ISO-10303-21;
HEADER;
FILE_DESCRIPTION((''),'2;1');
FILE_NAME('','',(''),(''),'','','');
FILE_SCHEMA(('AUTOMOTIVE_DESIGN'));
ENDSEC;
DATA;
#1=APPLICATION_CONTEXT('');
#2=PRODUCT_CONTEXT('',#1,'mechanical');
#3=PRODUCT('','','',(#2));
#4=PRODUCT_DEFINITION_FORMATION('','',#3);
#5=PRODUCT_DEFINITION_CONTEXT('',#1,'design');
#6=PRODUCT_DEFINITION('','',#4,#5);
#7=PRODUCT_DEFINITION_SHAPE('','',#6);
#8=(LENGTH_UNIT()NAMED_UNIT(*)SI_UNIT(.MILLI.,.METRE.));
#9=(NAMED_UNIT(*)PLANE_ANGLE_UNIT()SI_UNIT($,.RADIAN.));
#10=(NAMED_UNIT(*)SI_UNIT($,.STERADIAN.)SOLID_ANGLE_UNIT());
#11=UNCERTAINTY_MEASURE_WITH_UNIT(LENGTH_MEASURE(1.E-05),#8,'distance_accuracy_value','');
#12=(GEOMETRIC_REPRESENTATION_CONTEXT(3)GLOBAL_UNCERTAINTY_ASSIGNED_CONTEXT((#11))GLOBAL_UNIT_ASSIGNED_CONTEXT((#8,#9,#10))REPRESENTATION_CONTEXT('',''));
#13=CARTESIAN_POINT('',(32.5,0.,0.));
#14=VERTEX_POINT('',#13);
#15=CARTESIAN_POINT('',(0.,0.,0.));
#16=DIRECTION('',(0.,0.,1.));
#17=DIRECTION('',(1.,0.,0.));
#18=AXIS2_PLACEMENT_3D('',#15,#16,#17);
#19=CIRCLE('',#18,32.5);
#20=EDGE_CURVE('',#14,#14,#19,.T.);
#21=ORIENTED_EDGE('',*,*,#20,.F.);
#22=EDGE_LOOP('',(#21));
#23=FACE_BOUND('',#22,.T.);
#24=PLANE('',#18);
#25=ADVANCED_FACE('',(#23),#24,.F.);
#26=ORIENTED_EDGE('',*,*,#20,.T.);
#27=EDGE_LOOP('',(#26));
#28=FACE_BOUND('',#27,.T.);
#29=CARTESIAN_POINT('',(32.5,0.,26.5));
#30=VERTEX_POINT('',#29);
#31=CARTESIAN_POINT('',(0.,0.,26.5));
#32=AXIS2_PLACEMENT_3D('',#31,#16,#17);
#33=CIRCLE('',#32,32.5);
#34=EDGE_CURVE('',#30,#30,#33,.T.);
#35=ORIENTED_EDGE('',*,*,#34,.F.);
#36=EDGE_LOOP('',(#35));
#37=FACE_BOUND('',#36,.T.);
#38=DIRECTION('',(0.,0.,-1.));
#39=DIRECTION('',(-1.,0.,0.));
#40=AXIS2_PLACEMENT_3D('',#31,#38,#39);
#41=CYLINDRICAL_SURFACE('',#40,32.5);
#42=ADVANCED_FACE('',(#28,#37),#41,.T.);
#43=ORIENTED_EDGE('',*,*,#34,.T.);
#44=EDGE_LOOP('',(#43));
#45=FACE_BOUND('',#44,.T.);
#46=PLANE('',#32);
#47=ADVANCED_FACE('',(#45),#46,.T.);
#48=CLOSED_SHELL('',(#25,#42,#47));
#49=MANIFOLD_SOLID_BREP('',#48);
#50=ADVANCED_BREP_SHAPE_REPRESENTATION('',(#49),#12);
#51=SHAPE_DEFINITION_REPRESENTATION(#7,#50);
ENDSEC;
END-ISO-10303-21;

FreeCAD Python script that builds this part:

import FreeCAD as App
import Part
import Sketcher

V = App.Vector

doc = App.newDocument("Part")
body = doc.addObject("PartDesign::Body", "Body")

sketch1 = body.newObject("Sketcher::SketchObject", "Sketch")
sketch1.AttachmentSupport = (doc.getObject("XY_Plane"), [""])
sketch1.MapMode = "FlatFace"
sketch1.addGeometry(Part.Circle(V(0, 0, 0), V(0, 0, 1), 32), False)
sketch1.addConstraint([
    Sketcher.Constraint("Coincident", 0, 3, -1, 1),
    Sketcher.Constraint("Diameter", 0, 65.0),
])
pad1 = body.newObject("PartDesign::Pad", "Pad")
pad1.Profile = sketch1
pad1.Length = 26.5

doc.recompute()
